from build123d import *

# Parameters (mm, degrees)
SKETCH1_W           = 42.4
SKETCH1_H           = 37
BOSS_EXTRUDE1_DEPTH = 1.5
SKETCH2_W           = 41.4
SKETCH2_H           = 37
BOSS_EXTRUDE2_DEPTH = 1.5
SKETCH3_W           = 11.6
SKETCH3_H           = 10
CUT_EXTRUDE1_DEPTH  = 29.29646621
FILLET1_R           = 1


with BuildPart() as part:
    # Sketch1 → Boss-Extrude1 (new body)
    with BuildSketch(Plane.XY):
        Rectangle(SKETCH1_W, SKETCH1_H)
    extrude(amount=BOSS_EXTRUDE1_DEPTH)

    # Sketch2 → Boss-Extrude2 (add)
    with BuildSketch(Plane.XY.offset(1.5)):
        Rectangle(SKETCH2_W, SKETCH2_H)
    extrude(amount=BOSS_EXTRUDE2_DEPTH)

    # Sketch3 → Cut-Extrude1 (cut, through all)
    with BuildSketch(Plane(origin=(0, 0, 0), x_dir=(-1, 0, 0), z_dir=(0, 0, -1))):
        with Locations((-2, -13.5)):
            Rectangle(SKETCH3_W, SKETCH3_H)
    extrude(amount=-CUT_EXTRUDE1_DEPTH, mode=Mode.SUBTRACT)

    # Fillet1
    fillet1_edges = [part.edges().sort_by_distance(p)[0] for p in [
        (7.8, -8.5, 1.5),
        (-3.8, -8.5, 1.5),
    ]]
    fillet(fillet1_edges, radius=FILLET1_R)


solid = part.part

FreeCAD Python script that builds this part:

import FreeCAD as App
import Part
import Sketcher

V = App.Vector


def edges_at(feature, points):
    """Names of the edges that pass closest to the given points."""
    edges = feature.Shape.Edges
    near = lambda p: min(range(len(edges)), key=lambda i: edges[i].distToShape(Part.Vertex(*p))[0])
    return sorted({f"Edge{near(p) + 1}" for p in points})

doc = App.newDocument("Part")
body = doc.addObject("PartDesign::Body", "Body")

sketch1 = body.newObject("Sketcher::SketchObject", "Sketch")
sketch1.AttachmentSupport = (doc.getObject("XY_Plane"), [""])
sketch1.MapMode = "FlatFace"
sketch1.addGeometry([
    Part.LineSegment(V(-21, 18, 0), V(-21, -18, 0)),
    Part.LineSegment(V(-21, -18, 0), V(21, -18, 0)),
    Part.LineSegment(V(21, -18, 0), V(21, 18, 0)),
    Part.LineSegment(V(21, 18, 0), V(-21, 18, 0)),
], False)
sketch1.addConstraint([
    Sketcher.Constraint("Coincident", 0, 2, 1, 1),
    Sketcher.Constraint("Coincident", 1, 2, 2, 1),
    Sketcher.Constraint("Coincident", 2, 2, 3, 1),
    Sketcher.Constraint("Coincident", 3, 2, 0, 1),
    Sketcher.Constraint("Vertical", 0),
    Sketcher.Constraint("Horizontal", 1),
    Sketcher.Constraint("Vertical", 2),
    Sketcher.Constraint("Horizontal", 3),
    Sketcher.Constraint("Symmetric", 0, 2, 2, 2, -1, 1),
    Sketcher.Constraint("DistanceY", 0, 2, 0, 1, 37.0),
    Sketcher.Constraint("DistanceX", 1, 1, 1, 2, 42.4),
])
pad1 = body.newObject("PartDesign::Pad", "Pad")
pad1.Profile = sketch1
pad1.Length = 1.5

sketch2 = body.newObject("Sketcher::SketchObject", "Sketch001")
sketch2.AttachmentSupport = (doc.getObject("XY_Plane"), [""])
sketch2.MapMode = "FlatFace"
sketch2.AttachmentOffset = App.Placement(V(0, 0, 1.5), App.Rotation())
sketch2.addGeometry([
    Part.LineSegment(V(-21, 18, 0), V(-21, -18, 0)),
    Part.LineSegment(V(-21, -18, 0), V(21, -18, 0)),
    Part.LineSegment(V(21, -18, 0), V(21, 18, 0)),
    Part.LineSegment(V(21, 18, 0), V(-21, 18, 0)),
], False)
sketch2.addConstraint([
    Sketcher.Constraint("Coincident", 0, 2, 1, 1),
    Sketcher.Constraint("Coincident", 1, 2, 2, 1),
    Sketcher.Constraint("Coincident", 2, 2, 3, 1),
    Sketcher.Constraint("Coincident", 3, 2, 0, 1),
    Sketcher.Constraint("Vertical", 0),
    Sketcher.Constraint("Horizontal", 1),
    Sketcher.Constraint("Vertical", 2),
    Sketcher.Constraint("Horizontal", 3),
    Sketcher.Constraint("Symmetric", 0, 2, 2, 2, -1, 1),
    Sketcher.Constraint("DistanceY", 0, 2, 0, 1, 37.0),
    Sketcher.Constraint("DistanceX", 1, 1, 1, 2, 41.4),
])
pad2 = body.newObject("PartDesign::Pad", "Pad001")
pad2.Profile = sketch2
pad2.Length = 1.5

sketch3 = body.newObject("Sketcher::SketchObject", "Sketch002")
sketch3.AttachmentSupport = (doc.getObject("XY_Plane"), [""])
sketch3.MapMode = "FlatFace"
sketch3.addGeometry([
    Part.LineSegment(V(8, -8, 0), V(8, -18, 0)),
    Part.LineSegment(V(8, -18, 0), V(-4, -18, 0)),
    Part.LineSegment(V(-4, -18, 0), V(-4, -8, 0)),
    Part.LineSegment(V(-4, -8, 0), V(8, -8, 0)),
], False)
sketch3.addConstraint([
    Sketcher.Constraint("Coincident", 0, 2, 1, 1),
    Sketcher.Constraint("Coincident", 1, 2, 2, 1),
    Sketcher.Constraint("Coincident", 2, 2, 3, 1),
    Sketcher.Constraint("Coincident", 3, 2, 0, 1),
    Sketcher.Constraint("Vertical", 0),
    Sketcher.Constraint("Horizontal", 1),
    Sketcher.Constraint("Vertical", 2),
    Sketcher.Constraint("Horizontal", 3),
    Sketcher.Constraint("DistanceY", 0, 2, 0, 1, 10.0),
    Sketcher.Constraint("DistanceX", 1, 2, 1, 1, 11.6),
    Sketcher.Constraint("DistanceX", -1, 1, 0, 2, 7.8),
    Sketcher.Constraint("DistanceY", 0, 2, -1, 1, 18.5),
])
pocket1 = body.newObject("PartDesign::Pocket", "Pocket")
pocket1.Profile = sketch3
pocket1.Type = "ThroughAll"
pocket1.Reversed = True
doc.recompute()

fillet = body.newObject("PartDesign::Fillet", "Fillet")
fillet.Base = (pocket1, edges_at(pocket1, [(7.8, -8.5, 1.5), (-3.8, -8.5, 1.5)]))
fillet.Radius = 1

doc.recompute()
